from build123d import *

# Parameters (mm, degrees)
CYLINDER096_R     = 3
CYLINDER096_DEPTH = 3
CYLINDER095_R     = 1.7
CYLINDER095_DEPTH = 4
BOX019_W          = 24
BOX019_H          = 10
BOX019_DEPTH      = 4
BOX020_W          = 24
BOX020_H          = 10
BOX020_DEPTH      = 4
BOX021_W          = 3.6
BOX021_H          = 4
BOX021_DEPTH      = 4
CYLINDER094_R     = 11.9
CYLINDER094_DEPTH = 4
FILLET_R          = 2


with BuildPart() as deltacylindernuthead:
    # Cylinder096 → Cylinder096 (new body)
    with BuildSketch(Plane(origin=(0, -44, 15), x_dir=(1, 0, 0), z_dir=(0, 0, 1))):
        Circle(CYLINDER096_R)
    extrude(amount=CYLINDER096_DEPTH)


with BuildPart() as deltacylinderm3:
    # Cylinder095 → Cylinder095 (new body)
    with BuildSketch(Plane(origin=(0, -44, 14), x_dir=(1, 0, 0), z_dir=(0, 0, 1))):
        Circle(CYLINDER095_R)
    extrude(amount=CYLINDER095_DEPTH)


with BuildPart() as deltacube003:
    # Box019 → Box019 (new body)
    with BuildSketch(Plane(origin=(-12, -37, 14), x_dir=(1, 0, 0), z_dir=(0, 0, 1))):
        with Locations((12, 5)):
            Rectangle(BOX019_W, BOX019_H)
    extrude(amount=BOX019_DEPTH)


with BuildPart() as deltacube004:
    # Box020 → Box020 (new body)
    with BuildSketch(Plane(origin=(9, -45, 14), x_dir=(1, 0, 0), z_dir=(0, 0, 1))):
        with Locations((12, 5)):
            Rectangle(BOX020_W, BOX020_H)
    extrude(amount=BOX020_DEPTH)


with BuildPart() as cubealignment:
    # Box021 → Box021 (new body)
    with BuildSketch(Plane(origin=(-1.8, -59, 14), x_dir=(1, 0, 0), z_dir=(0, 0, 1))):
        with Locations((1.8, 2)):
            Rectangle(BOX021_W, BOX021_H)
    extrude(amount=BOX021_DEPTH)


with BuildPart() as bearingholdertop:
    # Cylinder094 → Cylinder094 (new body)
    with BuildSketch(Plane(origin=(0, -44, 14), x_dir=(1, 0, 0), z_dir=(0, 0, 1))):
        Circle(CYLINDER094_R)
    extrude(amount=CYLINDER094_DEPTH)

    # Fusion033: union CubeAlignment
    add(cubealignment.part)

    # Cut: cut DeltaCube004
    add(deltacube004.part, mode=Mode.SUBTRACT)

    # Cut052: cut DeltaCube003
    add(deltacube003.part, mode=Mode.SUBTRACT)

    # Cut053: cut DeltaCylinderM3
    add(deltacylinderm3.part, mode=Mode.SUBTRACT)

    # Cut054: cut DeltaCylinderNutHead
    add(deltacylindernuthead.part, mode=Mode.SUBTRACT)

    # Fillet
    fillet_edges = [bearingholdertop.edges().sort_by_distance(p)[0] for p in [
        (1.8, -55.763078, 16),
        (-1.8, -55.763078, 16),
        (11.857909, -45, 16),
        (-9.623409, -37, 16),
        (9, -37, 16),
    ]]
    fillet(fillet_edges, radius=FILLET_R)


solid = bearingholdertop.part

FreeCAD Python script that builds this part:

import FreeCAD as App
import Part
import Sketcher

V = App.Vector


def edges_at(feature, points):
    """Names of the edges that pass closest to the given points."""
    edges = feature.Shape.Edges
    near = lambda p: min(range(len(edges)), key=lambda i: edges[i].distToShape(Part.Vertex(*p))[0])
    return sorted({f"Edge{near(p) + 1}" for p in points})


def add_polygon(sketch, points):
    """Adds a closed chain of lines whose ends are joined by coincident constraints."""
    first, n = sketch.GeometryCount, len(points)
    for a, b in zip(points, points[1:] + points[:1]):
        sketch.addGeometry(Part.LineSegment(App.Vector(*a, 0), App.Vector(*b, 0)), False)
    for i in range(n):
        sketch.addConstraint(Sketcher.Constraint("Coincident", first + i, 2, first + (i + 1) % n, 1))

doc = App.newDocument("Part")
body = doc.addObject("PartDesign::Body", "Body")

sketch1 = body.newObject("Sketcher::SketchObject", "Sketch")
sketch1.AttachmentSupport = (doc.getObject("XY_Plane"), [""])
sketch1.MapMode = "FlatFace"
sketch1.AttachmentOffset = App.Placement(V(0, 0, 15), App.Rotation())
sketch1.addGeometry(Part.Circle(V(0, -44, 0), V(0, 0, 1), 3), False)
sketch1.addConstraint(Sketcher.Constraint("PointOnObject", 0, 3, -2))
sketch1.addConstraint(Sketcher.Constraint("Diameter", 0, 6.0))
sketch1.addConstraint(Sketcher.Constraint("DistanceY", 0, 3, -1, 1, 44.0))
pad1 = body.newObject("PartDesign::Pad", "Pad")
pad1.Profile = sketch1
pad1.Length = 3
body2 = doc.addObject("PartDesign::Body", "Body001")

sketch2 = body2.newObject("Sketcher::SketchObject", "Sketch001")
sketch2.AttachmentSupport = (doc.getObject("XY_Plane001"), [""])
sketch2.MapMode = "FlatFace"
sketch2.AttachmentOffset = App.Placement(V(0, 0, 14), App.Rotation())
sketch2.addGeometry(Part.Circle(V(0, -44, 0), V(0, 0, 1), 1.7), False)
sketch2.addConstraint(Sketcher.Constraint("PointOnObject", 0, 3, -2))
sketch2.addConstraint(Sketcher.Constraint("Diameter", 0, 3.4))
sketch2.addConstraint(Sketcher.Constraint("DistanceY", 0, 3, -1, 1, 44.0))
pad2 = body2.newObject("PartDesign::Pad", "Pad001")
pad2.Profile = sketch2
pad2.Length = 4
body3 = doc.addObject("PartDesign::Body", "Body002")

sketch3 = body3.newObject("Sketcher::SketchObject", "Sketch002")
sketch3.AttachmentSupport = (doc.getObject("XY_Plane002"), [""])
sketch3.MapMode = "FlatFace"
sketch3.AttachmentOffset = App.Placement(V(0, 0, 14), App.Rotation())
add_polygon(sketch3, [(-12, -27), (-12, -37), (12, -37), (12, -27)])
sketch3.addConstraint(Sketcher.Constraint("Vertical", 0))
sketch3.addConstraint(Sketcher.Constraint("Horizontal", 1))
sketch3.addConstraint(Sketcher.Constraint("Vertical", 2))
sketch3.addConstraint(Sketcher.Constraint("Horizontal", 3))
sketch3.addConstraint(Sketcher.Constraint("DistanceX", 1, 1, 1, 2, 24.0))
sketch3.addConstraint(Sketcher.Constraint("DistanceY", 0, 2, 0, 1, 10.0))
sketch3.addConstraint(Sketcher.Constraint("DistanceX", 0, 2, -1, 1, 12.0))
sketch3.addConstraint(Sketcher.Constraint("DistanceY", 0, 2, -1, 1, 37.0))
pad3 = body3.newObject("PartDesign::Pad", "Pad002")
pad3.Profile = sketch3
pad3.Length = 4
body4 = doc.addObject("PartDesign::Body", "Body003")

sketch4 = body4.newObject("Sketcher::SketchObject", "Sketch003")
sketch4.AttachmentSupport = (doc.getObject("XY_Plane003"), [""])
sketch4.MapMode = "FlatFace"
sketch4.AttachmentOffset = App.Placement(V(0, 0, 14), App.Rotation())
add_polygon(sketch4, [(9, -35), (9, -45), (33, -45), (33, -35)])
sketch4.addConstraint(Sketcher.Constraint("Vertical", 0))
sketch4.addConstraint(Sketcher.Constraint("Horizontal", 1))
sketch4.addConstraint(Sketcher.Constraint("Vertical", 2))
sketch4.addConstraint(Sketcher.Constraint("Horizontal", 3))
sketch4.addConstraint(Sketcher.Constraint("DistanceX", 1, 1, 1, 2, 24.0))
sketch4.addConstraint(Sketcher.Constraint("DistanceY", 0, 2, 0, 1, 10.0))
sketch4.addConstraint(Sketcher.Constraint("DistanceX", -1, 1, 0, 2, 9.0))
sketch4.addConstraint(Sketcher.Constraint("DistanceY", 0, 2, -1, 1, 45.0))
pad4 = body4.newObject("PartDesign::Pad", "Pad003")
pad4.Profile = sketch4
pad4.Length = 4
body5 = doc.addObject("PartDesign::Body", "Body004")

sketch5 = body5.newObject("Sketcher::SketchObject", "Sketch004")
sketch5.AttachmentSupport = (doc.getObject("XY_Plane004"), [""])
sketch5.MapMode = "FlatFace"
sketch5.AttachmentOffset = App.Placement(V(0, 0, 14), App.Rotation())
add_polygon(sketch5, [(-1.8, -55), (-1.8, -59), (1.8, -59), (1.8, -55)])
sketch5.addConstraint(Sketcher.Constraint("Vertical", 0))
sketch5.addConstraint(Sketcher.Constraint("Horizontal", 1))
sketch5.addConstraint(Sketcher.Constraint("Vertical", 2))
sketch5.addConstraint(Sketcher.Constraint("Horizontal", 3))
sketch5.addConstraint(Sketcher.Constraint("DistanceY", 0, 2, 0, 1, 4.0))
sketch5.addConstraint(Sketcher.Constraint("DistanceX", 1, 1, 1, 2, 3.6))
sketch5.addConstraint(Sketcher.Constraint("DistanceY", 0, 2, -1, 1, 59.0))
sketch5.addConstraint(Sketcher.Constraint("DistanceX", 0, 2, -1, 1, 1.8))
pad5 = body5.newObject("PartDesign::Pad", "Pad004")
pad5.Profile = sketch5
pad5.Length = 4
body6 = doc.addObject("PartDesign::Body", "Body005")

sketch6 = body6.newObject("Sketcher::SketchObject", "Sketch005")
sketch6.AttachmentSupport = (doc.getObject("XY_Plane005"), [""])
sketch6.MapMode = "FlatFace"
sketch6.AttachmentOffset = App.Placement(V(0, 0, 14), App.Rotation())
sketch6.addGeometry(Part.Circle(V(0, -44, 0), V(0, 0, 1), 12), False)
sketch6.addConstraint(Sketcher.Constraint("PointOnObject", 0, 3, -2))
sketch6.addConstraint(Sketcher.Constraint("Diameter", 0, 23.8))
sketch6.addConstraint(Sketcher.Constraint("DistanceY", 0, 3, -1, 1, 44.0))
pad6 = body6.newObject("PartDesign::Pad", "Pad005")
pad6.Profile = sketch6
pad6.Length = 4
doc.recompute()

boolean = body6.newObject("PartDesign::Boolean", "Boolean")
boolean.Type = "Fuse"
boolean.addObjects([body5])
doc.recompute()

boolean2 = body6.newObject("PartDesign::Boolean", "Boolean001")
boolean2.Type = "Cut"
boolean2.addObjects([body4])
doc.recompute()

boolean3 = body6.newObject("PartDesign::Boolean", "Boolean002")
boolean3.Type = "Cut"
boolean3.addObjects([body3])
doc.recompute()

boolean4 = body6.newObject("PartDesign::Boolean", "Boolean003")
boolean4.Type = "Cut"
boolean4.addObjects([body2])
doc.recompute()

boolean5 = body6.newObject("PartDesign::Boolean", "Boolean004")
boolean5.Type = "Cut"
boolean5.addObjects([body])
doc.recompute()

fillet = body6.newObject("PartDesign::Fillet", "Fillet")
fillet.Base = (boolean5, edges_at(boolean5, [
    (1.8, -55.763, 16),
    (-1.8, -55.763, 16),
    (11.858, -45, 16),
    (-9.623, -37, 16),
    (9, -37, 16),
]))
fillet.Radius = 2

doc.recompute()
